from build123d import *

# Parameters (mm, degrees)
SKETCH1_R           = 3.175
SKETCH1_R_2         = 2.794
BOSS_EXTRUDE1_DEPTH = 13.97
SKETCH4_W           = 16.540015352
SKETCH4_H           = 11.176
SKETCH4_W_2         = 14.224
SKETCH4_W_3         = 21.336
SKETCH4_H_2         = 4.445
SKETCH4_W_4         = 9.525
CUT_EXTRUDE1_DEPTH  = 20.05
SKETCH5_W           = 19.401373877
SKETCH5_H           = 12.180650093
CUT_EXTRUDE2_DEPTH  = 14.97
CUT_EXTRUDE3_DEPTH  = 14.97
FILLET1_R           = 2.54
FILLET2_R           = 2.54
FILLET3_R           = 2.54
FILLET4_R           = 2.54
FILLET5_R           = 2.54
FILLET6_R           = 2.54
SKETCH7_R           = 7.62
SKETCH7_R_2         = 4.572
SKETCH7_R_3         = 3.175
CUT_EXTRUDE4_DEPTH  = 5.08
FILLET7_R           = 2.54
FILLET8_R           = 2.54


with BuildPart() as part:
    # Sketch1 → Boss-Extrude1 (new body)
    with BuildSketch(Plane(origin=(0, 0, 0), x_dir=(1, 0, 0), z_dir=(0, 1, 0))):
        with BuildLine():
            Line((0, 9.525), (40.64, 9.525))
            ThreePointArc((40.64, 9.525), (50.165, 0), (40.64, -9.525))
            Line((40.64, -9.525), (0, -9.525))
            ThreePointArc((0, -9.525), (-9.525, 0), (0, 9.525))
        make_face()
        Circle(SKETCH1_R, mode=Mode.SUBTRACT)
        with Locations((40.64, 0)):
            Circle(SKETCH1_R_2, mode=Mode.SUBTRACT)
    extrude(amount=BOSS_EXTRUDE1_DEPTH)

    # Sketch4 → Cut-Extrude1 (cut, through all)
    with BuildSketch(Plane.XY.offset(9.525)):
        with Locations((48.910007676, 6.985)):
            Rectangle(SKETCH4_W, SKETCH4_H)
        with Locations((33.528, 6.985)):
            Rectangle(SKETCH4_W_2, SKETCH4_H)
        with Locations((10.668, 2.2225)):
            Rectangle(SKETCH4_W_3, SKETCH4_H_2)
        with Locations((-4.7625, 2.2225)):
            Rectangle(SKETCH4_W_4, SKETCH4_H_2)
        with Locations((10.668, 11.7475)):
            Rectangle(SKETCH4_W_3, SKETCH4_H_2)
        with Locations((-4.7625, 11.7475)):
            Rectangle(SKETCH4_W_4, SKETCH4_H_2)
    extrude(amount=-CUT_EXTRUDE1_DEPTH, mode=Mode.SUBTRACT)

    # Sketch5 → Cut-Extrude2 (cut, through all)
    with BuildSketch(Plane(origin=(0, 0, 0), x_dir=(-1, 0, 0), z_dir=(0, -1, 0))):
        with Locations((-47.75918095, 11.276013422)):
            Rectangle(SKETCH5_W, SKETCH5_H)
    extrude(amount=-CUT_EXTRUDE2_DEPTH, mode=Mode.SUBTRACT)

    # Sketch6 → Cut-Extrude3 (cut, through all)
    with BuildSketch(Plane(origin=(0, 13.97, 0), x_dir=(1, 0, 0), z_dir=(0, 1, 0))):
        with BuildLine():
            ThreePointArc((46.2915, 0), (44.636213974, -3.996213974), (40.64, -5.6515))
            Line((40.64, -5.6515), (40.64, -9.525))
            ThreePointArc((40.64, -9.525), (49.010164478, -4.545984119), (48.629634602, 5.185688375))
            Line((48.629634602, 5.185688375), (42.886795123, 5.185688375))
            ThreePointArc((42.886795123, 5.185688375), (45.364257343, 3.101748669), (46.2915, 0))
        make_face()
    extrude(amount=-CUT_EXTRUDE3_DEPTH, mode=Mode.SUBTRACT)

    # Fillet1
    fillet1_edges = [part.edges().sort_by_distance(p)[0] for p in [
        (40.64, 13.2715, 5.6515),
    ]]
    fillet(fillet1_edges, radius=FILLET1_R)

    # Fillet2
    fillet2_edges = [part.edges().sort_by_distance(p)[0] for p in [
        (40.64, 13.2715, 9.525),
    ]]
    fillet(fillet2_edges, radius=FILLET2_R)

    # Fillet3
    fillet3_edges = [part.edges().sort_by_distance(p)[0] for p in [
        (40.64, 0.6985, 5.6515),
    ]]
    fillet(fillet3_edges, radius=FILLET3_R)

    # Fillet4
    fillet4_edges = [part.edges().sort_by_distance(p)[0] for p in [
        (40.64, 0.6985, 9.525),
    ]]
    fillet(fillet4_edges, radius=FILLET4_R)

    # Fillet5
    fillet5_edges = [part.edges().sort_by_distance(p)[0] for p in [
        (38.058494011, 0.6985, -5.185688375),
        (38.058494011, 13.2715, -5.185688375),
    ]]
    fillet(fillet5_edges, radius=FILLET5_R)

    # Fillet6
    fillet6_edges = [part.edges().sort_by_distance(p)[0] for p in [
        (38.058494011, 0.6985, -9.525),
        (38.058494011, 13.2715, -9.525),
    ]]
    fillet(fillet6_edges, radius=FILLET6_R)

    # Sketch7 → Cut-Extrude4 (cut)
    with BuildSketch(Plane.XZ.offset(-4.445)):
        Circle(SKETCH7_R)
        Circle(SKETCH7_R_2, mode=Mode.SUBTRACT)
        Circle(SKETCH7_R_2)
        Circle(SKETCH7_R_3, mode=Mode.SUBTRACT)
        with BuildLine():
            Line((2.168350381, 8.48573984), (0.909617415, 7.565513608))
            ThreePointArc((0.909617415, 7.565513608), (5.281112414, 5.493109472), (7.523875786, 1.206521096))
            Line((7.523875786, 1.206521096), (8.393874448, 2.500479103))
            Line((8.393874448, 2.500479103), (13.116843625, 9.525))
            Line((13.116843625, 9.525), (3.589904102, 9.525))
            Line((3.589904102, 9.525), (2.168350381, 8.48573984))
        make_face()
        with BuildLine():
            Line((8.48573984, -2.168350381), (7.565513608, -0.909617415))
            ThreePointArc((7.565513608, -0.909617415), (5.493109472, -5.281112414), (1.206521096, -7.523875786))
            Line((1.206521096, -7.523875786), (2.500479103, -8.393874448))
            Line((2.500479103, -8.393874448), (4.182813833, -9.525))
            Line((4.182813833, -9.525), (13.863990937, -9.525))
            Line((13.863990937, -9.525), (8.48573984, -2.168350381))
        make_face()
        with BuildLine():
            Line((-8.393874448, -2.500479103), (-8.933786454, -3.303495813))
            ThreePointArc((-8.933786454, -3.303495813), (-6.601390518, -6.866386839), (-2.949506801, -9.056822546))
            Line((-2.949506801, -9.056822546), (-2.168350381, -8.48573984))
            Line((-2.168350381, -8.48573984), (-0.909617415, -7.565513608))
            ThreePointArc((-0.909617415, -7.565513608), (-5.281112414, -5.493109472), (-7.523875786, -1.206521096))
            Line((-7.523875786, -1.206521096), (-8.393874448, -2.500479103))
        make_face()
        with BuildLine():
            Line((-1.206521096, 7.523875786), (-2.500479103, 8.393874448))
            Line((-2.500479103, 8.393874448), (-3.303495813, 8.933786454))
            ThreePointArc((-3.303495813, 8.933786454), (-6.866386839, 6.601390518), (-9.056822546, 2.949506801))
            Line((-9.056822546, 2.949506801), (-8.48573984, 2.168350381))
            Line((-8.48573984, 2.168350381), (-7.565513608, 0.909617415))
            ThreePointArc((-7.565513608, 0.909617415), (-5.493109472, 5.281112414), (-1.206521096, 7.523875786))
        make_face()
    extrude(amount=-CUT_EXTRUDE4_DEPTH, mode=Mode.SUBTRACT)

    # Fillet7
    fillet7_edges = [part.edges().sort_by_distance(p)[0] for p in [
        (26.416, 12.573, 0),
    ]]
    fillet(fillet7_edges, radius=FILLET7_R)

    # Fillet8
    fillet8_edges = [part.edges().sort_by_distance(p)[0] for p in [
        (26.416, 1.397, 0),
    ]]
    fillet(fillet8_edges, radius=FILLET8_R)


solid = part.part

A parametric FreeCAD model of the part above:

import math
import FreeCAD as App
import Part
import Sketcher
Q = App.Units.Quantity


def edges_at(feature, points):
    """Names of the edges that pass closest to the given points."""
    edges = feature.Shape.Edges
    near = lambda p: min(range(len(edges)), key=lambda i: edges[i].distToShape(Part.Vertex(*p))[0])
    return sorted({f"Edge{near(p) + 1}" for p in points})


def add_polygon(sketch, points):
    """Adds a closed chain of lines whose ends are joined by coincident constraints."""
    first, n = sketch.GeometryCount, len(points)
    for a, b in zip(points, points[1:] + points[:1]):
        sketch.addGeometry(Part.LineSegment(App.Vector(*a, 0), App.Vector(*b, 0)), False)
    for i in range(n):
        sketch.addConstraint(Sketcher.Constraint("Coincident", first + i, 2, first + (i + 1) % n, 1))

doc = App.newDocument("Part")
params = doc.addObject("Spreadsheet::Sheet", "Params")
for row, (alias, value) in enumerate([
    ("sketch1_diameter", "0.22 in"),
    ("sketch1_diameter2", "0.25 in"),
    ("sketch1_width", "1.6 in"),
    ("sketch1_radius", "0.375 in"),
    ("pad1_length", "0.55 in"),
    ("sketch2_height", "0.44 in"),
    ("sketch2_width", "1.215 in"),
    ("sketch2_height2", "0.175 in"),
    ("sketch4_radius", "0.375 in"),
    ("fillet_radius", "0.1 in"),
    ("fillet2_radius", "0.1 in"),
    ("fillet3_radius", "0.1 in"),
    ("fillet4_radius", "0.1 in"),
    ("fillet5_radius", "0.1 in"),
    ("fillet6_radius", "0.1 in"),
    ("sketch5_radius", "0.3 in"),
    ("sketch5_diameter", "0.25 in"),
    ("sketch5_radius2", "0.375 in"),
    ("pocket4_length", "0.2 in"),
    ("fillet7_radius", "0.1 in"),
    ("fillet8_radius", "0.1 in"),
], start=1):
    params.set(f"A{row}", alias)
    params.set(f"B{row}", "=" + value)
    params.setAlias(f"B{row}", alias)

body = doc.addObject("PartDesign::Body", "Body")
body.AllowCompound = True

sketch1 = doc.addObject("Sketcher::SketchObject", "Sketch")
body.addObject(sketch1)
sketch1.AttachmentSupport = (doc.XZ_Plane, [""])
sketch1.MapMode = "FlatFace"
sketch1.addGeometry([
    Part.LineSegment(App.Vector(40.6, -9.5, 0), App.Vector(0, -9.5, 0)),
    Part.ArcOfCircle(Part.Circle(App.Vector(0, 0, 0), App.Vector(0, 0, 1), 9.5), math.radians(90), math.radians(270)),
    Part.LineSegment(App.Vector(0, 9.5, 0), App.Vector(40.6, 9.5, 0)),
    Part.ArcOfCircle(Part.Circle(App.Vector(40.6, 0, 0), App.Vector(0, 0, 1), 9.5), math.radians(-90), math.radians(90)),
    Part.Circle(App.Vector(40.6, 0, 0), App.Vector(0, 0, 1), 2.8),
    Part.Circle(App.Vector(0, 0, 0), App.Vector(0, 0, 1), 3.2),
], False)
sketch1.addConstraint([
    Sketcher.Constraint("Tangent", 0, 2, 1, 2),
    Sketcher.Constraint("Tangent", 1, 1, 2, 1),
    Sketcher.Constraint("Tangent", 2, 2, 3, 2),
    Sketcher.Constraint("Tangent", 3, 1, 0, 1),
    Sketcher.Constraint("Horizontal", 0),
    Sketcher.Constraint("Horizontal", 2),
    Sketcher.Constraint("Coincident", 1, 3, -1, 1),
    Sketcher.Constraint("Coincident", 5, 3, -1, 1),
    Sketcher.Constraint("Coincident", 4, 3, 3, 3),
    Sketcher.Constraint("Diameter", 4, Q("0.22 in")),
    Sketcher.Constraint("Diameter", 5, Q("0.25 in")),
    Sketcher.Constraint("DistanceX", 0, 2, 0, 1, Q("1.6 in")),
    Sketcher.Constraint("Radius", 1, Q("0.375 in")),
])
sketch1.setExpression("Constraints[9]", "Params.sketch1_diameter")
sketch1.setExpression("Constraints[10]", "Params.sketch1_diameter2")
sketch1.setExpression("Constraints[11]", "Params.sketch1_width")
sketch1.setExpression("Constraints[12]", "Params.sketch1_radius")
pad1 = doc.addObject("PartDesign::Pad", "Pad")
body.addObject(pad1)
pad1.Profile = sketch1
pad1.setExpression("Length", "Params.pad1_length")
pad1.Reversed = True

sketch2 = doc.addObject("Sketcher::SketchObject", "Sketch001")
body.addObject(sketch2)
sketch2.AttachmentSupport = (doc.XY_Plane, [""])
sketch2.MapMode = "FlatFace"
sketch2.AttachmentOffset = App.Placement(App.Vector(0, 0, 0.375 * 25.4), App.Rotation())
add_polygon(sketch2, [(57.2, 1.4), (57.2, 12.6), (26.4, 12.6), (26.4, 1.4)])
add_polygon(sketch2, [(21.3, 0), (21.3, 4.4), (-9.5, 4.4), (-9.5, 0)])
add_polygon(sketch2, [(21.3, 9.5), (21.3, 14), (-9.5, 14), (-9.5, 9.5)])
sketch2.addConstraint([
    Sketcher.Constraint("Vertical", 0),
    Sketcher.Constraint("Horizontal", 1),
    Sketcher.Constraint("Vertical", 2),
    Sketcher.Constraint("Horizontal", 3),
    Sketcher.Constraint("Vertical", 4),
    Sketcher.Constraint("Horizontal", 5),
    Sketcher.Constraint("Vertical", 6),
    Sketcher.Constraint("Horizontal", 7),
    Sketcher.Constraint("Vertical", 8),
    Sketcher.Constraint("Horizontal", 9),
    Sketcher.Constraint("Vertical", 10),
    Sketcher.Constraint("Horizontal", 11),
    Sketcher.Constraint("PointOnObject", 6, 2, -1),
    Sketcher.Constraint("Vertical", 7, 2, 8, 2),
    Sketcher.Constraint("Vertical", 6, 2, 9, 2),
    Sketcher.Constraint("Equal", 6, 8),
    Sketcher.Constraint("DistanceY", 0, 1, 0, 2, Q("0.44 in")),
    Sketcher.Constraint("DistanceX", 4, 2, 2, 2, Q("0.2 in")),
    Sketcher.Constraint("DistanceY", 5, 2, 10, 2, Q("0.2 in")),
    Sketcher.Constraint("DistanceX", 5, 2, 5, 1, Q("1.215 in")),
    Sketcher.Constraint("DistanceY", 4, 1, 4, 2, Q("0.175 in")),
    Sketcher.Constraint("DistanceX", -1, 1, 1, 2, Q("1.04 in")),
    Sketcher.Constraint("DistanceY", 2, 2, 4, 2, Q("0.12 in")),
    Sketcher.Constraint("DistanceX", 1, 2, 1, 1, 30.764015),
])
sketch2.setExpression("Constraints[28]", "Params.sketch2_height")
sketch2.setExpression("Constraints[31]", "Params.sketch2_width")
sketch2.setExpression("Constraints[32]", "Params.sketch2_height2")
pocket1 = doc.addObject("PartDesign::Pocket", "Pocket")
body.addObject(pocket1)
pocket1.Profile = sketch2
pocket1.Type = "ThroughAll"

sketch3 = doc.addObject("Sketcher::SketchObject", "Sketch002")
body.addObject(sketch3)
sketch3.AttachmentSupport = (doc.XZ_Plane, [""])
sketch3.MapMode = "FlatFace"
add_polygon(sketch3, [(57, -17), (57, -5), (38, -5), (38, -17)])
sketch3.addConstraint([
    Sketcher.Constraint("Vertical", 0),
    Sketcher.Constraint("Horizontal", 1),
    Sketcher.Constraint("Vertical", 2),
    Sketcher.Constraint("Horizontal", 3),
    Sketcher.Constraint("DistanceY", 0, 1, 0, 2, 12.18065),
    Sketcher.Constraint("DistanceX", 1, 2, 1, 1, 19.401374),
    Sketcher.Constraint("DistanceY", 0, 2, -1, 1, 5.185688),
    Sketcher.Constraint("DistanceX", -1, 1, 0, 2, 57.459868),
])
pocket2 = doc.addObject("PartDesign::Pocket", "Pocket001")
body.addObject(pocket2)
pocket2.Profile = sketch3
pocket2.Type = "ThroughAll"

sketch4 = doc.addObject("Sketcher::SketchObject", "Sketch003")
body.addObject(sketch4)
sketch4.AttachmentSupport = (doc.XZ_Plane, [""])
sketch4.MapMode = "FlatFace"
sketch4.AttachmentOffset = App.Placement(App.Vector(0, 0, -0.55 * 25.4), App.Rotation())
sketch4.addGeometry([
    Part.ArcOfCircle(Part.Circle(App.Vector(40.6, 0, 0), App.Vector(0, 0, 1), 5.7), math.radians(0), math.radians(90)),
    Part.LineSegment(App.Vector(40.6, 5.7, 0), App.Vector(40.6, 9.5, 0)),
    Part.ArcOfCircle(Part.Circle(App.Vector(40.6, 0, 0), App.Vector(0, 0, 1), 9.5), math.radians(-33), math.radians(90)),
    Part.LineSegment(App.Vector(48.6, -5.2, 0), App.Vector(42.9, -5.2, 0)),
    Part.ArcOfCircle(Part.Circle(App.Vector(40.6, 0, 0), App.Vector(0, 0, 1), 5.7), math.radians(-67), math.radians(0)),
], False)
sketch4.addConstraint([
    Sketcher.Constraint("Coincident", 0, 2, 1, 1),
    Sketcher.Constraint("Coincident", 1, 2, 2, 2),
    Sketcher.Constraint("Coincident", 2, 1, 3, 1),
    Sketcher.Constraint("Coincident", 3, 2, 4, 1),
    Sketcher.Constraint("Tangent", 4, 2, 0, 1),
    Sketcher.Constraint("Vertical", 1),
    Sketcher.Constraint("Horizontal", 3),
    Sketcher.Constraint("Coincident", 2, 3, 0, 3),
    Sketcher.Constraint("Equal", 0, 4),
    Sketcher.Constraint("PointOnObject", 0, 3, -1),
    Sketcher.Constraint("PointOnObject", 4, 2, -1),
    Sketcher.Constraint("Vertical", 4, 3, 0, 2),
    Sketcher.Constraint("Radius", 2, Q("0.375 in")),
    Sketcher.Constraint("DistanceX", -1, 1, 0, 3, Q("1.6 in")),
    Sketcher.Constraint("Radius", 0, Q("0.2225 in")),
    Sketcher.Constraint("DistanceX", 3, 2, 3, 1, 5.742839),
])
sketch4.setExpression("Constraints[12]", "Params.sketch4_radius")
pocket3 = doc.addObject("PartDesign::Pocket", "Pocket002")
body.addObject(pocket3)
pocket3.Profile = sketch4
pocket3.Type = "ThroughAll"
pocket3.Reversed = True
doc.recompute()

fillet = doc.addObject("PartDesign::Fillet", "Fillet")
body.addObject(fillet)
fillet.Base = (pocket3, edges_at(pocket3, [(40.64, 13.271, 5.652)]))
fillet.setExpression("Radius", "Params.fillet_radius")
doc.recompute()

fillet2 = doc.addObject("PartDesign::Fillet", "Fillet001")
body.addObject(fillet2)
fillet2.Base = (fillet, edges_at(fillet, [(40.64, 13.271, 9.525)]))
fillet2.setExpression("Radius", "Params.fillet2_radius")
doc.recompute()

fillet3 = doc.addObject("PartDesign::Fillet", "Fillet002")
body.addObject(fillet3)
fillet3.Base = (fillet2, edges_at(fillet2, [(40.64, 0.699, 5.652)]))
fillet3.setExpression("Radius", "Params.fillet3_radius")
doc.recompute()

fillet4 = doc.addObject("PartDesign::Fillet", "Fillet003")
body.addObject(fillet4)
fillet4.Base = (fillet3, edges_at(fillet3, [(40.64, 0.699, 9.525)]))
fillet4.setExpression("Radius", "Params.fillet4_radius")
doc.recompute()

fillet5 = doc.addObject("PartDesign::Fillet", "Fillet004")
body.addObject(fillet5)
fillet5.Base = (fillet4, edges_at(fillet4, [(38.058, 0.699, -5.186), (38.058, 13.271, -5.186)]))
fillet5.setExpression("Radius", "Params.fillet5_radius")
doc.recompute()

fillet6 = doc.addObject("PartDesign::Fillet", "Fillet005")
body.addObject(fillet6)
fillet6.Base = (fillet5, edges_at(fillet5, [(38.058, 0.699, -9.525), (38.058, 13.271, -9.525)]))
fillet6.setExpression("Radius", "Params.fillet6_radius")

sketch5 = doc.addObject("Sketcher::SketchObject", "Sketch004")
body.addObject(sketch5)
sketch5.AttachmentSupport = (doc.XZ_Plane, [""])
sketch5.MapMode = "FlatFace"
sketch5.AttachmentOffset = App.Placement(App.Vector(0, 0, -0.175 * 25.4), App.Rotation())
sketch5.addGeometry([
    Part.LineSegment(App.Vector(7.5, 1.2, 0), App.Vector(8.4, 2.5, 0)),
    Part.LineSegment(App.Vector(8.4, 2.5, 0), App.Vector(13.1, 9.5, 0)),
    Part.LineSegment(App.Vector(13.1, 9.5, 0), App.Vector(3.6, 9.5, 0)),
    Part.LineSegment(App.Vector(3.6, 9.5, 0), App.Vector(2.2, 8.5, 0)),
    Part.LineSegment(App.Vector(2.2, 8.5, 0), App.Vector(0.9, 7.6, 0)),
    Part.ArcOfCircle(Part.Circle(App.Vector(0, 0, 0), App.Vector(0, 0, 1), 7.6), math.radians(83.14), math.radians(99.11)),
    Part.LineSegment(App.Vector(-1.2, 7.5, 0), App.Vector(-2.5, 8.4, 0)),
    Part.LineSegment(App.Vector(-2.5, 8.4, 0), App.Vector(-3.3, 8.9, 0)),
    Part.ArcOfCircle(Part.Circle(App.Vector(0, 0, 0), App.Vector(0, 0, 1), 9.5), math.radians(110), math.radians(162)),
    Part.LineSegment(App.Vector(-9.1, 2.9, 0), App.Vector(-8.5, 2.2, 0)),
    Part.LineSegment(App.Vector(-8.5, 2.2, 0), App.Vector(-7.6, 0.9, 0)),
    Part.ArcOfCircle(Part.Circle(App.Vector(0, 0, 0), App.Vector(0, 0, 1), 7.6), math.radians(173.14), math.radians(189.11)),
    Part.LineSegment(App.Vector(-7.5, -1.2, 0), App.Vector(-8.4, -2.5, 0)),
    Part.LineSegment(App.Vector(-8.4, -2.5, 0), App.Vector(-8.9, -3.3, 0)),
    Part.ArcOfCircle(Part.Circle(App.Vector(0, 0, 0), App.Vector(0, 0, 1), 9.5), math.radians(-160), math.radians(-108)),
    Part.LineSegment(App.Vector(-2.9, -9.1, 0), App.Vector(-2.2, -8.5, 0)),
    Part.LineSegment(App.Vector(-2.2, -8.5, 0), App.Vector(-0.9, -7.6, 0)),
    Part.ArcOfCircle(Part.Circle(App.Vector(0, 0, 0), App.Vector(0, 0, 1), 7.6), math.radians(-96.86), math.radians(-80.89)),
    Part.LineSegment(App.Vector(1.2, -7.5, 0), App.Vector(2.5, -8.4, 0)),
    Part.LineSegment(App.Vector(2.5, -8.4, 0), App.Vector(4.2, -9.5, 0)),
    Part.LineSegment(App.Vector(4.2, -9.5, 0), App.Vector(13.9, -9.5, 0)),
    Part.LineSegment(App.Vector(13.9, -9.5, 0), App.Vector(8.5, -2.2, 0)),
    Part.LineSegment(App.Vector(8.5, -2.2, 0), App.Vector(7.6, -0.9, 0)),
    Part.ArcOfCircle(Part.Circle(App.Vector(0, 0, 0), App.Vector(0, 0, 1), 7.6), math.radians(-6.86), math.radians(9.11)),
    Part.Circle(App.Vector(0, 0, 0), App.Vector(0, 0, 1), 3.2),
], False)
sketch5.addConstraint([
    Sketcher.Constraint("Coincident", 0, 2, 1, 1),
    Sketcher.Constraint("Coincident", 1, 2, 2, 1),
    Sketcher.Constraint("Coincident", 2, 2, 3, 1),
    Sketcher.Constraint("Coincident", 3, 2, 4, 1),
    Sketcher.Constraint("Coincident", 4, 2, 5, 1),
    Sketcher.Constraint("Coincident", 5, 2, 6, 1),
    Sketcher.Constraint("Coincident", 6, 2, 7, 1),
    Sketcher.Constraint("Coincident", 7, 2, 8, 1),
    Sketcher.Constraint("Coincident", 8, 2, 9, 1),
    Sketcher.Constraint("Coincident", 9, 2, 10, 1),
    Sketcher.Constraint("Coincident", 10, 2, 11, 1),
    Sketcher.Constraint("Coincident", 11, 2, 12, 1),
    Sketcher.Constraint("Coincident", 12, 2, 13, 1),
    Sketcher.Constraint("Coincident", 13, 2, 14, 1),
    Sketcher.Constraint("Coincident", 14, 2, 15, 1),
    Sketcher.Constraint("Coincident", 15, 2, 16, 1),
    Sketcher.Constraint("Coincident", 16, 2, 17, 1),
    Sketcher.Constraint("Coincident", 17, 2, 18, 1),
    Sketcher.Constraint("Coincident", 18, 2, 19, 1),
    Sketcher.Constraint("Coincident", 19, 2, 20, 1),
    Sketcher.Constraint("Coincident", 20, 2, 21, 1),
    Sketcher.Constraint("Coincident", 21, 2, 22, 1),
    Sketcher.Constraint("Coincident", 22, 2, 23, 1),
    Sketcher.Constraint("Coincident", 23, 2, 0, 1),
    Sketcher.Constraint("Horizontal", 2),
    Sketcher.Constraint("Horizontal", 20),
    Sketcher.Constraint("Coincident", 5, 3, -1, 1),
    Sketcher.Constraint("Coincident", 8, 3, -1, 1),
    Sketcher.Constraint("Coincident", 11, 3, -1, 1),
    Sketcher.Constraint("Coincident", 14, 3, -1, 1),
    Sketcher.Constraint("Coincident", 17, 3, -1, 1),
    Sketcher.Constraint("Coincident", 23, 3, -1, 1),
    Sketcher.Constraint("Coincident", 24, 3, -1, 1),
    Sketcher.Constraint("Equal", 5, 11),
    Sketcher.Constraint("Equal", 8, 14),
    Sketcher.Constraint("Equal", 11, 17),
    Sketcher.Constraint("Equal", 17, 23),
    Sketcher.Constraint("Symmetric", 0, 2, 12, 2, -1, 1),
    Sketcher.Constraint("Symmetric", 3, 2, 15, 2, -1, 1),
    Sketcher.Constraint("Symmetric", 6, 2, 18, 2, -1, 1),
    Sketcher.Constraint("Symmetric", 9, 2, 21, 2, -1, 1),
    Sketcher.Constraint("Parallel", 0, 1),
    Sketcher.Constraint("Parallel", 3, 4),
    Sketcher.Constraint("Perpendicular", 1, 6),
    Sketcher.Constraint("Parallel", 6, 7),
    Sketcher.Constraint("Perpendicular", 4, 9),
    Sketcher.Constraint("Parallel", 9, 10),
    Sketcher.Constraint("Perpendicular", 7, 12),
    Sketcher.Constraint("Parallel", 12, 13),
    Sketcher.Constraint("Perpendicular", 10, 15),
    Sketcher.Constraint("Parallel", 15, 16),
    Sketcher.Constraint("Perpendicular", 13, 18),
    Sketcher.Constraint("Parallel", 18, 19),
    Sketcher.Constraint("Perpendicular", 16, 21),
    Sketcher.Constraint("Parallel", 21, 22),
    Sketcher.Constraint("Equal", 0, 4),
    Sketcher.Constraint("Equal", 4, 6),
    Sketcher.Constraint("Equal", 7, 9),
    Sketcher.Constraint("Equal", 6, 10),
    Sketcher.Constraint("Equal", 9, 13),
    Sketcher.Constraint("Equal", 13, 15),
    Sketcher.Constraint("Radius", 5, Q("0.3 in")),
    Sketcher.Constraint("Diameter", 24, Q("0.25 in")),
    Sketcher.Constraint("Radius", 8, Q("0.375 in")),
    Sketcher.Constraint("DistanceY", -1, 1, 1, 2, Q("0.375 in")),
    Sketcher.Constraint("DistanceY", 19, 2, -1, 1, Q("0.375 in")),
    Sketcher.Constraint("DistanceX", 14, 2, 19, 2, Q("0.2808 in")),
    Sketcher.Constraint("DistanceX", 2, 2, 2, 1, 9.52694),
    Sketcher.Constraint("DistanceY", 5, 2, 6, 2, 0.869999),
    Sketcher.Constraint("DistanceX", 7, 2, 2, 2, 6.8934),
])
sketch5.setExpression("Constraints[61]", "Params.sketch5_radius")
sketch5.setExpression("Constraints[62]", "Params.sketch5_diameter")
sketch5.setExpression("Constraints[63]", "Params.sketch5_radius2")
pocket4 = doc.addObject("PartDesign::Pocket", "Pocket003")
body.addObject(pocket4)
pocket4.Profile = sketch5
pocket4.setExpression("Length", "Params.pocket4_length")
doc.recompute()

fillet7 = doc.addObject("PartDesign::Fillet", "Fillet006")
body.addObject(fillet7)
fillet7.Base = (pocket4, edges_at(pocket4, [(26.416, 12.573, 0)]))
fillet7.setExpression("Radius", "Params.fillet7_radius")
doc.recompute()

fillet8 = doc.addObject("PartDesign::Fillet", "Fillet007")
body.addObject(fillet8)
fillet8.Base = (fillet7, edges_at(fillet7, [(26.416, 1.397, 0)]))
fillet8.setExpression("Radius", "Params.fillet8_radius")

doc.recompute()
